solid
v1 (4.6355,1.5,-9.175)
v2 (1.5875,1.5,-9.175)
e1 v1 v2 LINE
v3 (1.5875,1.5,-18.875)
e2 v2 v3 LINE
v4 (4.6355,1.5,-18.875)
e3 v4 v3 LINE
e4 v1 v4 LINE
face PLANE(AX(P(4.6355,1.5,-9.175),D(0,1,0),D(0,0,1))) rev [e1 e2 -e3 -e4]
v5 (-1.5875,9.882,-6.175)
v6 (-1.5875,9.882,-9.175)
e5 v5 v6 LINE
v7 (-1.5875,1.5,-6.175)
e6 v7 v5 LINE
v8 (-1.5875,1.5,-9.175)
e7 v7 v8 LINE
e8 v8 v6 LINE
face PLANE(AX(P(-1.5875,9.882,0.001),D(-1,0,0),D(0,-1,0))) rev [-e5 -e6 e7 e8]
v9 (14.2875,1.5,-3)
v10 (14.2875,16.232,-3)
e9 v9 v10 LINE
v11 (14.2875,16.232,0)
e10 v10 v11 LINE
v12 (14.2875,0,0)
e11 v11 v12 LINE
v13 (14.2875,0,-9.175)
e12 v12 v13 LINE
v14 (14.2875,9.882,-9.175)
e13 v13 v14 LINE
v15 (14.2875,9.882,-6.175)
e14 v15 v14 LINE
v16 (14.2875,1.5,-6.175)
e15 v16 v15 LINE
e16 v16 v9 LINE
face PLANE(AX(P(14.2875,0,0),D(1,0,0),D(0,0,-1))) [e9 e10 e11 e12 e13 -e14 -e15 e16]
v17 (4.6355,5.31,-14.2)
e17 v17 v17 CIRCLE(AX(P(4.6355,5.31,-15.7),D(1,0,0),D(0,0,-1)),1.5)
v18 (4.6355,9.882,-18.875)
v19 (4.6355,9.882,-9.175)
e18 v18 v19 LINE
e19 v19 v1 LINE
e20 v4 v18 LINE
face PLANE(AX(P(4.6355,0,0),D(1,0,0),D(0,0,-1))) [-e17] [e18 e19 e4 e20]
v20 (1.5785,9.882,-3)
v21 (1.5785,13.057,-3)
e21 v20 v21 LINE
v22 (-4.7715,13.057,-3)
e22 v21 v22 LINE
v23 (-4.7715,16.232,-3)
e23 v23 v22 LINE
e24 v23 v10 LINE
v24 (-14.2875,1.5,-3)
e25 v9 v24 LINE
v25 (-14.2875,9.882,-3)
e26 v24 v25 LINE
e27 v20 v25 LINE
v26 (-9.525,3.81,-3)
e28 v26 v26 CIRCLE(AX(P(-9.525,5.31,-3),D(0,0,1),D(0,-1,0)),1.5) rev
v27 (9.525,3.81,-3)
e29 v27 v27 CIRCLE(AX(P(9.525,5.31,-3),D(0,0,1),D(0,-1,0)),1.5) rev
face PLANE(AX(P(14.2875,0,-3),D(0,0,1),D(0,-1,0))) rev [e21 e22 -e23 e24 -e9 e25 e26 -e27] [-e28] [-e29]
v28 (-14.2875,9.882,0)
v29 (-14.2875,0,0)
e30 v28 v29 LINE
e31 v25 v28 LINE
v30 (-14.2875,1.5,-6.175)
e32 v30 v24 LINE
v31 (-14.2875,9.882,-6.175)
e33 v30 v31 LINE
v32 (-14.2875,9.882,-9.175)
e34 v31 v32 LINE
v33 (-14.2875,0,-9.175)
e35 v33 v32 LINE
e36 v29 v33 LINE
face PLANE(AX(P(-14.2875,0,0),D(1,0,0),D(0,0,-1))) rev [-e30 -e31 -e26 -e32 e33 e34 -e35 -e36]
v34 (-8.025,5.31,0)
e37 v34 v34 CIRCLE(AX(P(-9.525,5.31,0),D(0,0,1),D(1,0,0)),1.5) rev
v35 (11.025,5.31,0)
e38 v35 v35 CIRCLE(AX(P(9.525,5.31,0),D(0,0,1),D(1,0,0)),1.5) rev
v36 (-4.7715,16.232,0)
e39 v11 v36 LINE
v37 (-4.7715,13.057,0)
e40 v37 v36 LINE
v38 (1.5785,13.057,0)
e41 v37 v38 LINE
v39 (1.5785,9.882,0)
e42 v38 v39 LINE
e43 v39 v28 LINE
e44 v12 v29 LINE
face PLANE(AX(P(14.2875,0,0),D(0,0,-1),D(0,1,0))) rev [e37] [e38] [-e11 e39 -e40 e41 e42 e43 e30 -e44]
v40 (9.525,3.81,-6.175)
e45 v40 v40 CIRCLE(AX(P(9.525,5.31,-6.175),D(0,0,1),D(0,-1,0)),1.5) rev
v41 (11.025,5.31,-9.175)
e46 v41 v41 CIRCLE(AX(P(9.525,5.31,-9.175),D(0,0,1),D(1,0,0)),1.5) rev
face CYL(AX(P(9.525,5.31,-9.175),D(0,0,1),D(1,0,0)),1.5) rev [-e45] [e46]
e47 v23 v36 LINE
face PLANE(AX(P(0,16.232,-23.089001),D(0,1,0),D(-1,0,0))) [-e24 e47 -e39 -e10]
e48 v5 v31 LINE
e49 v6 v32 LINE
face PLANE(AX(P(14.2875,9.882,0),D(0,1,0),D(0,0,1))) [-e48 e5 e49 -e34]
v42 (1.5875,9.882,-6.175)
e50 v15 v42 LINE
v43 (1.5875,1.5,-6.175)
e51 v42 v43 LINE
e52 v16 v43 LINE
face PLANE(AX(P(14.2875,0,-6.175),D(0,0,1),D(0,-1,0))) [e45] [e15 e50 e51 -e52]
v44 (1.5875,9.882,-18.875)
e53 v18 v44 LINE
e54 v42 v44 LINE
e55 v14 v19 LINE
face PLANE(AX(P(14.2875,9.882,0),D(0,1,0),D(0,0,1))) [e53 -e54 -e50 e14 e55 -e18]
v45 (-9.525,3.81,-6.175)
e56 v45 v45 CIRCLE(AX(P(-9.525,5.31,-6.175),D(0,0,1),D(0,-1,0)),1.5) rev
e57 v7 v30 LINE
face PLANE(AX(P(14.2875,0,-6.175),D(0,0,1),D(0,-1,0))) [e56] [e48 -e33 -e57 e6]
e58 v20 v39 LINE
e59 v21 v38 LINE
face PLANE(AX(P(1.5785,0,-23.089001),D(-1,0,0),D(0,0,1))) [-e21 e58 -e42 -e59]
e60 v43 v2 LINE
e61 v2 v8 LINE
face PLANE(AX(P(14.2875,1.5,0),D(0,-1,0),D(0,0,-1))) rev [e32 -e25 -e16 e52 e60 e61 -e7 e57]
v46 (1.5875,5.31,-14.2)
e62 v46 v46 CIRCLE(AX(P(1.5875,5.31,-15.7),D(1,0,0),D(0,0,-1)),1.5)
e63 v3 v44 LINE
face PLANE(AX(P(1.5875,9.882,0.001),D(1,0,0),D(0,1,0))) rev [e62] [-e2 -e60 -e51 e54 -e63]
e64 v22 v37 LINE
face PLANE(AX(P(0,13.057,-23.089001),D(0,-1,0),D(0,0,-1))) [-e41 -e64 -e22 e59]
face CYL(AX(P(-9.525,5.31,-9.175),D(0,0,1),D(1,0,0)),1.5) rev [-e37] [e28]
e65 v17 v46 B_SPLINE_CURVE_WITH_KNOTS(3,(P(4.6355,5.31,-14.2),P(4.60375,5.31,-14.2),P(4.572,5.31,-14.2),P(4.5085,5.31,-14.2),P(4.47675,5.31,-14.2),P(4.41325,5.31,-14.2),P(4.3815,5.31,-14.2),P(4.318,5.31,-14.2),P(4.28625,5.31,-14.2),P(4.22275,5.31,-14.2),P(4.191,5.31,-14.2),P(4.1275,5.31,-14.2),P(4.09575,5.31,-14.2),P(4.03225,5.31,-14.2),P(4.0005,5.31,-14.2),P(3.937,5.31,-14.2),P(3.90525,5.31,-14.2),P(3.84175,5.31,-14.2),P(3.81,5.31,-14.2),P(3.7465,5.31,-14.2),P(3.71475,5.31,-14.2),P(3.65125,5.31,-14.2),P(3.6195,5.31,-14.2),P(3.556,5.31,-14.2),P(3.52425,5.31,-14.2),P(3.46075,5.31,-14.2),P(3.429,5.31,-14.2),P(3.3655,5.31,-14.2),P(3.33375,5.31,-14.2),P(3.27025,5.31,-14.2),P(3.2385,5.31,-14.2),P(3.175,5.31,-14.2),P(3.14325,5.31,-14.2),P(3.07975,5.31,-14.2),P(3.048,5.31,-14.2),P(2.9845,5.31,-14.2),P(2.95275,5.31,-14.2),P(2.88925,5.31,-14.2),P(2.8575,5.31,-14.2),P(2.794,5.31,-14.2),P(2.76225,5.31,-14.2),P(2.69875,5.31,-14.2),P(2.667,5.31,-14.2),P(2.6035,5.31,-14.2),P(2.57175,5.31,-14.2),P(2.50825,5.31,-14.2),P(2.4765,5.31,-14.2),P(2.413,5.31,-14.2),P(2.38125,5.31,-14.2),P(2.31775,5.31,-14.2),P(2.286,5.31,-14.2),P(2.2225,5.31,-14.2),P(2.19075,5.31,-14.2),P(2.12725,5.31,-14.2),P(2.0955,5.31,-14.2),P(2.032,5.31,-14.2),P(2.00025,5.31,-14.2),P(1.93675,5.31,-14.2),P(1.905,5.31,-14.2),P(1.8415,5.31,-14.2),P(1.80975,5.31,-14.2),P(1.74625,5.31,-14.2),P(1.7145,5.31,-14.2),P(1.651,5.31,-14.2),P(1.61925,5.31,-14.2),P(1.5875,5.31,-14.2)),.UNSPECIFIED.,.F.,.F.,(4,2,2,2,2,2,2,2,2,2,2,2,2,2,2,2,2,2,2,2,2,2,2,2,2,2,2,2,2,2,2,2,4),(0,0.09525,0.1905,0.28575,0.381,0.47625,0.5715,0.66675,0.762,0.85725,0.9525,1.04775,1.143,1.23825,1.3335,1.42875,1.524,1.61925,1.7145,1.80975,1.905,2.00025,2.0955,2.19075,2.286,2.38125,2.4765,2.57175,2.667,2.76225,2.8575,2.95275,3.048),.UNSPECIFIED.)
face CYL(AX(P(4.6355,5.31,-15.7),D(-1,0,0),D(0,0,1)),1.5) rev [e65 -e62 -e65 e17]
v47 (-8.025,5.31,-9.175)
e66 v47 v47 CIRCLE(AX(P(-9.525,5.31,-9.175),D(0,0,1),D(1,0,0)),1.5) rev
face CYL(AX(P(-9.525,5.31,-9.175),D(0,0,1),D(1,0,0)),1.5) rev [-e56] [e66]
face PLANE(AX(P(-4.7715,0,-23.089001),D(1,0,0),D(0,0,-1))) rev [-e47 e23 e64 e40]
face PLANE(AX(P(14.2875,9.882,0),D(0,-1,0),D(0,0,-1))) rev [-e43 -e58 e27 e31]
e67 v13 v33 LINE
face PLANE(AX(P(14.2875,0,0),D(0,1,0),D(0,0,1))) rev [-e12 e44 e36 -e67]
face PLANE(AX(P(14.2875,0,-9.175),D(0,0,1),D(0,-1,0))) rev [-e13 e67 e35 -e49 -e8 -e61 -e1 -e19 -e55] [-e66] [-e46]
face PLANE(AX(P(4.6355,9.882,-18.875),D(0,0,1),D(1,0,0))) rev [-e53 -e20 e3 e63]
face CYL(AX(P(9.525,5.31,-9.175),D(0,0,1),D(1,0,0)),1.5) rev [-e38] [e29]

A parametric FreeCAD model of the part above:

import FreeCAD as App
import Part
import Sketcher
Q = App.Units.Quantity

doc = App.newDocument("Part")
body = doc.addObject("PartDesign::Body", "Body")

# Sketch on YZ plane
sketch1 = body.newObject("Sketcher::SketchObject", "Sketch")
sketch1.AttachmentSupport = (doc.getObject("YZ_Plane"), [""])
sketch1.MapMode = "FlatFace"
sketch1.addGeometry([
    Part.LineSegment(App.Vector(1.5, -3, 0), App.Vector(9.9, -3, 0)),  # 0
    Part.LineSegment(App.Vector(9.9, -3, 0), App.Vector(9.9, 0, 0)),  # 1
    Part.LineSegment(App.Vector(9.9, 0, 0), App.Vector(0, 0, 0)),  # 2
    Part.LineSegment(App.Vector(0, 0, 0), App.Vector(0, -9.2, 0)),  # 3
    Part.LineSegment(App.Vector(0, -9.2, 0), App.Vector(9.9, -9.2, 0)),  # 4
    Part.LineSegment(App.Vector(9.9, -9.2, 0), App.Vector(9.9, -6.2, 0)),  # 5
    Part.LineSegment(App.Vector(9.9, -6.2, 0), App.Vector(1.5, -6.2, 0)),  # 6
    Part.LineSegment(App.Vector(1.5, -6.2, 0), App.Vector(1.5, -3, 0)),  # 7
], False)
sketch1.addConstraint([
    Sketcher.Constraint("Coincident", 0, 2, 1, 1),
    Sketcher.Constraint("Coincident", 1, 2, 2, 1),
    Sketcher.Constraint("Coincident", 2, 2, 3, 1),
    Sketcher.Constraint("Coincident", 3, 2, 4, 1),
    Sketcher.Constraint("Coincident", 4, 2, 5, 1),
    Sketcher.Constraint("Coincident", 5, 2, 6, 1),
    Sketcher.Constraint("Coincident", 6, 2, 7, 1),
    Sketcher.Constraint("Coincident", 7, 2, 0, 1),
    Sketcher.Constraint("Horizontal", 0),
    Sketcher.Constraint("Vertical", 1),
    Sketcher.Constraint("Horizontal", 2),
    Sketcher.Constraint("Vertical", 3),
    Sketcher.Constraint("Horizontal", 4),
    Sketcher.Constraint("Vertical", 5),
    Sketcher.Constraint("Horizontal", 6),
    Sketcher.Constraint("Vertical", 7),
    Sketcher.Constraint("Coincident", 2, 2, -1, 1),
    Sketcher.Constraint("Vertical", 1, 2, 4, 2),
    Sketcher.Constraint("Equal", 1, 5),
    Sketcher.Constraint("DistanceX", 0, 1, 0, 2, Q("0.33 in")),
    Sketcher.Constraint("DistanceY", 7, 1, 7, 2, Q("0.125 in")),
    Sketcher.Constraint("DistanceX", 2, 2, 2, 1, Q("9.882 mm")),
    Sketcher.Constraint("DistanceY", 1, 1, 1, 2, Q("3 mm")),
])
pad1 = body.newObject("PartDesign::Pad", "Pad")
pad1.Profile = sketch1
pad1.Length = Q("1.125 in")
pad1.Midplane = True

# Sketch on XY plane
sketch2 = body.newObject("Sketcher::SketchObject", "Sketch001")
sketch2.AttachmentSupport = (doc.getObject("XY_Plane"), [""])
sketch2.MapMode = "FlatFace"
sketch2.addGeometry([
    Part.Circle(App.Vector(9.5, 5.3, 0), App.Vector(0, 0, 1), 1.5),
    Part.Circle(App.Vector(-9.5, 5.3, 0), App.Vector(0, 0, 1), 1.5),
], False)
sketch2.addConstraint([
    Sketcher.Constraint("Equal", 0, 1),
    Sketcher.Constraint("Symmetric", 0, 3, 1, 3, -2),
    Sketcher.Constraint("Diameter", 0, Q("3 mm")),
    Sketcher.Constraint("DistanceX", 1, 3, 0, 3, Q("0.75 in")),
    Sketcher.Constraint("DistanceY", -1, 1, 0, 3, Q("5.31 mm")),
])
pocket1 = body.newObject("PartDesign::Pocket", "Pocket")
pocket1.Profile = sketch2
pocket1.Type = "ThroughAll"

# Sketch on XY plane
sketch3 = body.newObject("Sketcher::SketchObject", "Sketch002")
sketch3.AttachmentSupport = (doc.getObject("XY_Plane"), [""])
sketch3.MapMode = "FlatFace"
sketch3.AttachmentOffset = App.Placement(App.Vector(0, 0, -9.175), App.Rotation())
sketch3.addGeometry([
    Part.LineSegment(App.Vector(1.6, 9.9, 0), App.Vector(1.6, 1.5, 0)),
    Part.LineSegment(App.Vector(1.6, 1.5, 0), App.Vector(-1.6, 1.5, 0)),
    Part.LineSegment(App.Vector(-1.6, 1.5, 0), App.Vector(-1.6, 9.9, 0)),
    Part.LineSegment(App.Vector(-1.6, 9.9, 0), App.Vector(1.6, 9.9, 0)),
], False)
sketch3.addConstraint([
    Sketcher.Constraint("Coincident", 0, 2, 1, 1),
    Sketcher.Constraint("Coincident", 1, 2, 2, 1),
    Sketcher.Constraint("Coincident", 2, 2, 3, 1),
    Sketcher.Constraint("Coincident", 3, 2, 0, 1),
    Sketcher.Constraint("Vertical", 0),
    Sketcher.Constraint("Horizontal", 1),
    Sketcher.Constraint("Vertical", 2),
    Sketcher.Constraint("Horizontal", 3),
    Sketcher.Constraint("DistanceY", 0, 2, 0, 1, Q("0.33 in")),
    Sketcher.Constraint("DistanceX", 1, 2, 1, 1, Q("0.125 in")),
    Sketcher.Constraint("DistanceX", -1, 1, 0, 2, Q("0.0625 in")),
    Sketcher.Constraint("DistanceY", -1, 1, 0, 2, Q("1.5 mm")),
])
pocket2 = body.newObject("PartDesign::Pocket", "Pocket001")
pocket2.Profile = sketch3
pocket2.Type = "UpToFirst"
pocket2.Reversed = True

# Sketch on YZ plane
sketch4 = body.newObject("Sketcher::SketchObject", "Sketch003")
sketch4.AttachmentSupport = (doc.getObject("YZ_Plane"), [""])
sketch4.MapMode = "FlatFace"
sketch4.AttachmentOffset = App.Placement(App.Vector(0, 0, 0.0625 * 25.4), App.Rotation())
sketch4.addGeometry([
    Part.LineSegment(App.Vector(9.9, -9.2, 0), App.Vector(1.5, -9.2, 0)),  # 0
    Part.LineSegment(App.Vector(1.5, -9.2, 0), App.Vector(1.5, -18.9, 0)),  # 1
    Part.LineSegment(App.Vector(1.5, -18.9, 0), App.Vector(9.9, -18.9, 0)),  # 2
    Part.LineSegment(App.Vector(9.9, -18.9, 0), App.Vector(9.9, -9.2, 0)),  # 3
    Part.Circle(App.Vector(5.3, -15.7, 0), App.Vector(0, 0, 1), 1.5),  # 4
], False)
sketch4.addConstraint([
    Sketcher.Constraint("Coincident", 0, 2, 1, 1),
    Sketcher.Constraint("Coincident", 1, 2, 2, 1),
    Sketcher.Constraint("Coincident", 2, 2, 3, 1),
    Sketcher.Constraint("Coincident", 3, 2, 0, 1),
    Sketcher.Constraint("Horizontal", 0),
    Sketcher.Constraint("Vertical", 1),
    Sketcher.Constraint("Horizontal", 2),
    Sketcher.Constraint("Vertical", 3),
    Sketcher.Constraint("DistanceX", 0, 2, 0, 1, Q("0.33 in")),
    Sketcher.Constraint("Diameter", 4, Q("3 mm")),
    Sketcher.Constraint("DistanceX", 0, 2, 4, 3, Q("0.15 in")),
    Sketcher.Constraint("DistanceY", 1, 2, 4, 3, Q("0.125 in")),
    Sketcher.Constraint("DistanceY", 1, 2, 1, 1, Q("9.7 mm")),
    Sketcher.Constraint("DistanceX", -1, 1, 4, 3, Q("5.31 mm")),
    Sketcher.Constraint("DistanceY", 4, 3, -1, 1, Q("15.7 mm")),
])
pad2 = body.newObject("PartDesign::Pad", "Pad001")
pad2.Profile = sketch4
pad2.Length = Q("0.12 in")

# Sketch on XY plane
sketch5 = body.newObject("Sketcher::SketchObject", "Sketch004")
sketch5.AttachmentSupport = (doc.getObject("XY_Plane"), [""])
sketch5.MapMode = "FlatFace"
sketch5.addGeometry([
    Part.LineSegment(App.Vector(1.6, 9.9, 0), App.Vector(14.3, 9.9, 0)),  # 0
    Part.LineSegment(App.Vector(14.3, 9.9, 0), App.Vector(14.3, 16.2, 0)),  # 1
    Part.LineSegment(App.Vector(14.3, 16.2, 0), App.Vector(-4.8, 16.2, 0)),  # 2
    Part.LineSegment(App.Vector(-4.8, 16.2, 0), App.Vector(-4.8, 13.1, 0)),  # 3
    Part.LineSegment(App.Vector(-4.8, 13.1, 0), App.Vector(1.6, 13.1, 0)),  # 4
    Part.LineSegment(App.Vector(1.6, 13.1, 0), App.Vector(1.6, 9.9, 0)),  # 5
], False)
sketch5.addConstraint([
    Sketcher.Constraint("Coincident", 0, 2, 1, 1),
    Sketcher.Constraint("Coincident", 1, 2, 2, 1),
    Sketcher.Constraint("Coincident", 2, 2, 3, 1),
    Sketcher.Constraint("Coincident", 3, 2, 4, 1),
    Sketcher.Constraint("Coincident", 4, 2, 5, 1),
    Sketcher.Constraint("Coincident", 5, 2, 0, 1),
    Sketcher.Constraint("Horizontal", 0),
    Sketcher.Constraint("Vertical", 1),
    Sketcher.Constraint("Horizontal", 2),
    Sketcher.Constraint("Vertical", 3),
    Sketcher.Constraint("Horizontal", 4),
    Sketcher.Constraint("Vertical", 5),
    Sketcher.Constraint("Equal", 4, 1),
    Sketcher.Constraint("Equal", 3, 5),
    Sketcher.Constraint("DistanceX", 4, 1, 4, 2, Q("0.25 in")),
    Sketcher.Constraint("DistanceX", -1, 1, 0, 2, Q("0.5625 in")),
    Sketcher.Constraint("DistanceX", 0, 1, 0, 2, Q("12.709 mm")),
    Sketcher.Constraint("DistanceY", -1, 1, 0, 2, Q("9.882 mm")),
])
pad3 = body.newObject("PartDesign::Pad", "Pad002")
pad3.Profile = sketch5
pad3.Length = 3
pad3.Reversed = True

doc.recompute()
